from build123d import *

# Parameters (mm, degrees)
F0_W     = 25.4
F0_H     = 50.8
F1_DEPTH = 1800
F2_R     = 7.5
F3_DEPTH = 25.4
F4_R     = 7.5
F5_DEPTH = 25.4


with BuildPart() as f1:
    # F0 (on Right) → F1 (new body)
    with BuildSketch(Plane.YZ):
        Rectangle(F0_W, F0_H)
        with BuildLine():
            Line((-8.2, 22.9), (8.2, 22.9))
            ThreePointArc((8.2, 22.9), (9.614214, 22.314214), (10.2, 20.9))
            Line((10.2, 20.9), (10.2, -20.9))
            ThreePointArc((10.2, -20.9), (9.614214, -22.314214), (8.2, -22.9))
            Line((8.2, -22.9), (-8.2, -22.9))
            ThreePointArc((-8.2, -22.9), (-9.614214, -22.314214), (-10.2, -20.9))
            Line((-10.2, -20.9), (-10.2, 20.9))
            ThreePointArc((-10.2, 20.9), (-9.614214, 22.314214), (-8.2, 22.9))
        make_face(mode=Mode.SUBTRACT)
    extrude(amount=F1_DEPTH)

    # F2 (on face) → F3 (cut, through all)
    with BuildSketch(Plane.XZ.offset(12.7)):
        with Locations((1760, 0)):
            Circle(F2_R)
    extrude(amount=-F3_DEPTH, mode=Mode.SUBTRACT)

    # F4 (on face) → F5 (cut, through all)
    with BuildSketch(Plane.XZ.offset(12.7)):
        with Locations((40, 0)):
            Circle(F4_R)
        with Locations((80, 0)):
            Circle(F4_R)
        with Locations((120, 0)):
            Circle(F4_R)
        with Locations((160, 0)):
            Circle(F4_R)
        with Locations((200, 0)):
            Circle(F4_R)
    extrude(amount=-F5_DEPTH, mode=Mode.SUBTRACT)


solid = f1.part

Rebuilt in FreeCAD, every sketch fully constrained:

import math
import FreeCAD as App
import Part
import Sketcher

V = App.Vector
Q = App.Units.Quantity

doc = App.newDocument("Part")
body = doc.addObject("PartDesign::Body", "Body")

# Sketch on YZ plane
sketch1 = body.newObject("Sketcher::SketchObject", "Sketch")
sketch1.AttachmentSupport = (doc.getObject("YZ_Plane"), [""])
sketch1.MapMode = "FlatFace"
sketch1.addGeometry(Part.LineSegment(V(-12.7, 25.4, 0), V(-12.7, -25.4, 0)), False)
sketch1.addGeometry(Part.LineSegment(V(-12.7, -25.4, 0), V(12.7, -25.4, 0)), False)
sketch1.addGeometry(Part.LineSegment(V(12.7, -25.4, 0), V(12.7, 25.4, 0)), False)
sketch1.addGeometry(Part.LineSegment(V(12.7, 25.4, 0), V(-12.7, 25.4, 0)), False)
sketch1.addGeometry(Part.ArcOfCircle(Part.Circle(V(-8.2, 20.9, 0), V(0, 0, 1), 2), math.radians(90), math.radians(180)), False)
sketch1.addGeometry(Part.LineSegment(V(-8.2, 22.9, 0), V(8.2, 22.9, 0)), False)
sketch1.addGeometry(Part.ArcOfCircle(Part.Circle(V(8.2, 20.9, 0), V(0, 0, 1), 2), math.radians(0), math.radians(90)), False)
sketch1.addGeometry(Part.LineSegment(V(10.2, 20.9, 0), V(10.2, -20.9, 0)), False)
sketch1.addGeometry(Part.ArcOfCircle(Part.Circle(V(8.2, -20.9, 0), V(0, 0, 1), 2), math.radians(-90), math.radians(0)), False)
sketch1.addGeometry(Part.LineSegment(V(8.2, -22.9, 0), V(-8.2, -22.9, 0)), False)
sketch1.addGeometry(Part.ArcOfCircle(Part.Circle(V(-8.2, -20.9, 0), V(0, 0, 1), 2), math.radians(180), math.radians(270)), False)
sketch1.addGeometry(Part.LineSegment(V(-10.2, -20.9, 0), V(-10.2, 20.9, 0)), False)
sketch1.addConstraint(Sketcher.Constraint("Coincident", 0, 2, 1, 1))
sketch1.addConstraint(Sketcher.Constraint("Coincident", 1, 2, 2, 1))
sketch1.addConstraint(Sketcher.Constraint("Coincident", 2, 2, 3, 1))
sketch1.addConstraint(Sketcher.Constraint("Coincident", 3, 2, 0, 1))
sketch1.addConstraint(Sketcher.Constraint("Tangent", 4, 1, 5, 1))
sketch1.addConstraint(Sketcher.Constraint("Tangent", 5, 2, 6, 2))
sketch1.addConstraint(Sketcher.Constraint("Tangent", 6, 1, 7, 1))
sketch1.addConstraint(Sketcher.Constraint("Tangent", 7, 2, 8, 2))
sketch1.addConstraint(Sketcher.Constraint("Tangent", 8, 1, 9, 1))
sketch1.addConstraint(Sketcher.Constraint("Tangent", 9, 2, 10, 2))
sketch1.addConstraint(Sketcher.Constraint("Tangent", 10, 1, 11, 1))
sketch1.addConstraint(Sketcher.Constraint("Tangent", 11, 2, 4, 2))
sketch1.addConstraint(Sketcher.Constraint("Vertical", 0))
sketch1.addConstraint(Sketcher.Constraint("Horizontal", 1))
sketch1.addConstraint(Sketcher.Constraint("Vertical", 2))
sketch1.addConstraint(Sketcher.Constraint("Horizontal", 3))
sketch1.addConstraint(Sketcher.Constraint("Horizontal", 5))
sketch1.addConstraint(Sketcher.Constraint("Vertical", 7))
sketch1.addConstraint(Sketcher.Constraint("Horizontal", 9))
sketch1.addConstraint(Sketcher.Constraint("Vertical", 11))
sketch1.addConstraint(Sketcher.Constraint("Equal", 4, 6))
sketch1.addConstraint(Sketcher.Constraint("Equal", 6, 8))
sketch1.addConstraint(Sketcher.Constraint("Equal", 8, 10))
sketch1.addConstraint(Sketcher.Constraint("Symmetric", 4, 3, 8, 3, -1, 1))
sketch1.addConstraint(Sketcher.Constraint("Symmetric", 0, 2, 2, 2, -1, 1))
sketch1.addConstraint(Sketcher.Constraint("Radius", 4, Q("1.999999 mm")))
sketch1.addConstraint(Sketcher.Constraint("DistanceX", 1, 1, 1, 2, Q("25.4 mm")))
sketch1.addConstraint(Sketcher.Constraint("DistanceX", 5, 1, 5, 2, Q("16.4 mm")))
sketch1.addConstraint(Sketcher.Constraint("DistanceY", 0, 2, 0, 1, Q("50.8 mm")))
sketch1.addConstraint(Sketcher.Constraint("DistanceY", 7, 2, 7, 1, Q("41.8 mm")))
pad1 = body.newObject("PartDesign::Pad", "Pad")
pad1.Profile = sketch1
pad1.Length = 1800

# Sketch on XZ plane
sketch2 = body.newObject("Sketcher::SketchObject", "Sketch001")
sketch2.AttachmentSupport = (doc.getObject("XZ_Plane"), [""])
sketch2.MapMode = "FlatFace"
sketch2.AttachmentOffset = App.Placement(V(0, 0, 12.7), App.Rotation())
sketch2.addGeometry(Part.Circle(V(1760, 0, 0), V(0, 0, 1), 8), False)
sketch2.addConstraint(Sketcher.Constraint("PointOnObject", 0, 3, -1))
sketch2.addConstraint(Sketcher.Constraint("Diameter", 0, Q("15 mm")))
sketch2.addConstraint(Sketcher.Constraint("DistanceX", -1, 1, 0, 3, Q("1760 mm")))
pocket1 = body.newObject("PartDesign::Pocket", "Pocket")
pocket1.Profile = sketch2
pocket1.Type = "ThroughAll"

# Sketch on XZ plane
sketch3 = body.newObject("Sketcher::SketchObject", "Sketch002")
sketch3.AttachmentSupport = (doc.getObject("XZ_Plane"), [""])
sketch3.MapMode = "FlatFace"
sketch3.AttachmentOffset = App.Placement(V(0, 0, 12.7), App.Rotation())
sketch3.addGeometry(Part.Circle(V(40, 0, 0), V(0, 0, 1), 8), False)
sketch3.addGeometry(Part.Circle(V(80, 0, 0), V(0, 0, 1), 8), False)
sketch3.addGeometry(Part.Circle(V(120, 0, 0), V(0, 0, 1), 8), False)
sketch3.addGeometry(Part.Circle(V(160, 0, 0), V(0, 0, 1), 8), False)
sketch3.addGeometry(Part.Circle(V(200, 0, 0), V(0, 0, 1), 8), False)
sketch3.addConstraint(Sketcher.Constraint("Equal", 0, 1))
sketch3.addConstraint(Sketcher.Constraint("Equal", 1, 2))
sketch3.addConstraint(Sketcher.Constraint("Equal", 2, 3))
sketch3.addConstraint(Sketcher.Constraint("Equal", 3, 4))
sketch3.addConstraint(Sketcher.Constraint("PointOnObject", 0, 3, -1))
sketch3.addConstraint(Sketcher.Constraint("PointOnObject", 1, 3, -1))
sketch3.addConstraint(Sketcher.Constraint("PointOnObject", 2, 3, -1))
sketch3.addConstraint(Sketcher.Constraint("PointOnObject", 3, 3, -1))
sketch3.addConstraint(Sketcher.Constraint("PointOnObject", 4, 3, -1))
sketch3.addConstraint(Sketcher.Constraint("Diameter", 0, Q("15 mm")))
sketch3.addConstraint(Sketcher.Constraint("DistanceX", -1, 1, 0, 3, Q("40 mm")))
sketch3.addConstraint(Sketcher.Constraint("DistanceX", -1, 1, 1, 3, Q("80 mm")))
sketch3.addConstraint(Sketcher.Constraint("DistanceX", -1, 1, 2, 3, Q("120 mm")))
sketch3.addConstraint(Sketcher.Constraint("DistanceX", -1, 1, 3, 3, Q("160 mm")))
sketch3.addConstraint(Sketcher.Constraint("DistanceX", -1, 1, 4, 3, Q("200 mm")))
pocket2 = body.newObject("PartDesign::Pocket", "Pocket001")
pocket2.Profile = sketch3
pocket2.Type = "ThroughAll"

doc.recompute()
